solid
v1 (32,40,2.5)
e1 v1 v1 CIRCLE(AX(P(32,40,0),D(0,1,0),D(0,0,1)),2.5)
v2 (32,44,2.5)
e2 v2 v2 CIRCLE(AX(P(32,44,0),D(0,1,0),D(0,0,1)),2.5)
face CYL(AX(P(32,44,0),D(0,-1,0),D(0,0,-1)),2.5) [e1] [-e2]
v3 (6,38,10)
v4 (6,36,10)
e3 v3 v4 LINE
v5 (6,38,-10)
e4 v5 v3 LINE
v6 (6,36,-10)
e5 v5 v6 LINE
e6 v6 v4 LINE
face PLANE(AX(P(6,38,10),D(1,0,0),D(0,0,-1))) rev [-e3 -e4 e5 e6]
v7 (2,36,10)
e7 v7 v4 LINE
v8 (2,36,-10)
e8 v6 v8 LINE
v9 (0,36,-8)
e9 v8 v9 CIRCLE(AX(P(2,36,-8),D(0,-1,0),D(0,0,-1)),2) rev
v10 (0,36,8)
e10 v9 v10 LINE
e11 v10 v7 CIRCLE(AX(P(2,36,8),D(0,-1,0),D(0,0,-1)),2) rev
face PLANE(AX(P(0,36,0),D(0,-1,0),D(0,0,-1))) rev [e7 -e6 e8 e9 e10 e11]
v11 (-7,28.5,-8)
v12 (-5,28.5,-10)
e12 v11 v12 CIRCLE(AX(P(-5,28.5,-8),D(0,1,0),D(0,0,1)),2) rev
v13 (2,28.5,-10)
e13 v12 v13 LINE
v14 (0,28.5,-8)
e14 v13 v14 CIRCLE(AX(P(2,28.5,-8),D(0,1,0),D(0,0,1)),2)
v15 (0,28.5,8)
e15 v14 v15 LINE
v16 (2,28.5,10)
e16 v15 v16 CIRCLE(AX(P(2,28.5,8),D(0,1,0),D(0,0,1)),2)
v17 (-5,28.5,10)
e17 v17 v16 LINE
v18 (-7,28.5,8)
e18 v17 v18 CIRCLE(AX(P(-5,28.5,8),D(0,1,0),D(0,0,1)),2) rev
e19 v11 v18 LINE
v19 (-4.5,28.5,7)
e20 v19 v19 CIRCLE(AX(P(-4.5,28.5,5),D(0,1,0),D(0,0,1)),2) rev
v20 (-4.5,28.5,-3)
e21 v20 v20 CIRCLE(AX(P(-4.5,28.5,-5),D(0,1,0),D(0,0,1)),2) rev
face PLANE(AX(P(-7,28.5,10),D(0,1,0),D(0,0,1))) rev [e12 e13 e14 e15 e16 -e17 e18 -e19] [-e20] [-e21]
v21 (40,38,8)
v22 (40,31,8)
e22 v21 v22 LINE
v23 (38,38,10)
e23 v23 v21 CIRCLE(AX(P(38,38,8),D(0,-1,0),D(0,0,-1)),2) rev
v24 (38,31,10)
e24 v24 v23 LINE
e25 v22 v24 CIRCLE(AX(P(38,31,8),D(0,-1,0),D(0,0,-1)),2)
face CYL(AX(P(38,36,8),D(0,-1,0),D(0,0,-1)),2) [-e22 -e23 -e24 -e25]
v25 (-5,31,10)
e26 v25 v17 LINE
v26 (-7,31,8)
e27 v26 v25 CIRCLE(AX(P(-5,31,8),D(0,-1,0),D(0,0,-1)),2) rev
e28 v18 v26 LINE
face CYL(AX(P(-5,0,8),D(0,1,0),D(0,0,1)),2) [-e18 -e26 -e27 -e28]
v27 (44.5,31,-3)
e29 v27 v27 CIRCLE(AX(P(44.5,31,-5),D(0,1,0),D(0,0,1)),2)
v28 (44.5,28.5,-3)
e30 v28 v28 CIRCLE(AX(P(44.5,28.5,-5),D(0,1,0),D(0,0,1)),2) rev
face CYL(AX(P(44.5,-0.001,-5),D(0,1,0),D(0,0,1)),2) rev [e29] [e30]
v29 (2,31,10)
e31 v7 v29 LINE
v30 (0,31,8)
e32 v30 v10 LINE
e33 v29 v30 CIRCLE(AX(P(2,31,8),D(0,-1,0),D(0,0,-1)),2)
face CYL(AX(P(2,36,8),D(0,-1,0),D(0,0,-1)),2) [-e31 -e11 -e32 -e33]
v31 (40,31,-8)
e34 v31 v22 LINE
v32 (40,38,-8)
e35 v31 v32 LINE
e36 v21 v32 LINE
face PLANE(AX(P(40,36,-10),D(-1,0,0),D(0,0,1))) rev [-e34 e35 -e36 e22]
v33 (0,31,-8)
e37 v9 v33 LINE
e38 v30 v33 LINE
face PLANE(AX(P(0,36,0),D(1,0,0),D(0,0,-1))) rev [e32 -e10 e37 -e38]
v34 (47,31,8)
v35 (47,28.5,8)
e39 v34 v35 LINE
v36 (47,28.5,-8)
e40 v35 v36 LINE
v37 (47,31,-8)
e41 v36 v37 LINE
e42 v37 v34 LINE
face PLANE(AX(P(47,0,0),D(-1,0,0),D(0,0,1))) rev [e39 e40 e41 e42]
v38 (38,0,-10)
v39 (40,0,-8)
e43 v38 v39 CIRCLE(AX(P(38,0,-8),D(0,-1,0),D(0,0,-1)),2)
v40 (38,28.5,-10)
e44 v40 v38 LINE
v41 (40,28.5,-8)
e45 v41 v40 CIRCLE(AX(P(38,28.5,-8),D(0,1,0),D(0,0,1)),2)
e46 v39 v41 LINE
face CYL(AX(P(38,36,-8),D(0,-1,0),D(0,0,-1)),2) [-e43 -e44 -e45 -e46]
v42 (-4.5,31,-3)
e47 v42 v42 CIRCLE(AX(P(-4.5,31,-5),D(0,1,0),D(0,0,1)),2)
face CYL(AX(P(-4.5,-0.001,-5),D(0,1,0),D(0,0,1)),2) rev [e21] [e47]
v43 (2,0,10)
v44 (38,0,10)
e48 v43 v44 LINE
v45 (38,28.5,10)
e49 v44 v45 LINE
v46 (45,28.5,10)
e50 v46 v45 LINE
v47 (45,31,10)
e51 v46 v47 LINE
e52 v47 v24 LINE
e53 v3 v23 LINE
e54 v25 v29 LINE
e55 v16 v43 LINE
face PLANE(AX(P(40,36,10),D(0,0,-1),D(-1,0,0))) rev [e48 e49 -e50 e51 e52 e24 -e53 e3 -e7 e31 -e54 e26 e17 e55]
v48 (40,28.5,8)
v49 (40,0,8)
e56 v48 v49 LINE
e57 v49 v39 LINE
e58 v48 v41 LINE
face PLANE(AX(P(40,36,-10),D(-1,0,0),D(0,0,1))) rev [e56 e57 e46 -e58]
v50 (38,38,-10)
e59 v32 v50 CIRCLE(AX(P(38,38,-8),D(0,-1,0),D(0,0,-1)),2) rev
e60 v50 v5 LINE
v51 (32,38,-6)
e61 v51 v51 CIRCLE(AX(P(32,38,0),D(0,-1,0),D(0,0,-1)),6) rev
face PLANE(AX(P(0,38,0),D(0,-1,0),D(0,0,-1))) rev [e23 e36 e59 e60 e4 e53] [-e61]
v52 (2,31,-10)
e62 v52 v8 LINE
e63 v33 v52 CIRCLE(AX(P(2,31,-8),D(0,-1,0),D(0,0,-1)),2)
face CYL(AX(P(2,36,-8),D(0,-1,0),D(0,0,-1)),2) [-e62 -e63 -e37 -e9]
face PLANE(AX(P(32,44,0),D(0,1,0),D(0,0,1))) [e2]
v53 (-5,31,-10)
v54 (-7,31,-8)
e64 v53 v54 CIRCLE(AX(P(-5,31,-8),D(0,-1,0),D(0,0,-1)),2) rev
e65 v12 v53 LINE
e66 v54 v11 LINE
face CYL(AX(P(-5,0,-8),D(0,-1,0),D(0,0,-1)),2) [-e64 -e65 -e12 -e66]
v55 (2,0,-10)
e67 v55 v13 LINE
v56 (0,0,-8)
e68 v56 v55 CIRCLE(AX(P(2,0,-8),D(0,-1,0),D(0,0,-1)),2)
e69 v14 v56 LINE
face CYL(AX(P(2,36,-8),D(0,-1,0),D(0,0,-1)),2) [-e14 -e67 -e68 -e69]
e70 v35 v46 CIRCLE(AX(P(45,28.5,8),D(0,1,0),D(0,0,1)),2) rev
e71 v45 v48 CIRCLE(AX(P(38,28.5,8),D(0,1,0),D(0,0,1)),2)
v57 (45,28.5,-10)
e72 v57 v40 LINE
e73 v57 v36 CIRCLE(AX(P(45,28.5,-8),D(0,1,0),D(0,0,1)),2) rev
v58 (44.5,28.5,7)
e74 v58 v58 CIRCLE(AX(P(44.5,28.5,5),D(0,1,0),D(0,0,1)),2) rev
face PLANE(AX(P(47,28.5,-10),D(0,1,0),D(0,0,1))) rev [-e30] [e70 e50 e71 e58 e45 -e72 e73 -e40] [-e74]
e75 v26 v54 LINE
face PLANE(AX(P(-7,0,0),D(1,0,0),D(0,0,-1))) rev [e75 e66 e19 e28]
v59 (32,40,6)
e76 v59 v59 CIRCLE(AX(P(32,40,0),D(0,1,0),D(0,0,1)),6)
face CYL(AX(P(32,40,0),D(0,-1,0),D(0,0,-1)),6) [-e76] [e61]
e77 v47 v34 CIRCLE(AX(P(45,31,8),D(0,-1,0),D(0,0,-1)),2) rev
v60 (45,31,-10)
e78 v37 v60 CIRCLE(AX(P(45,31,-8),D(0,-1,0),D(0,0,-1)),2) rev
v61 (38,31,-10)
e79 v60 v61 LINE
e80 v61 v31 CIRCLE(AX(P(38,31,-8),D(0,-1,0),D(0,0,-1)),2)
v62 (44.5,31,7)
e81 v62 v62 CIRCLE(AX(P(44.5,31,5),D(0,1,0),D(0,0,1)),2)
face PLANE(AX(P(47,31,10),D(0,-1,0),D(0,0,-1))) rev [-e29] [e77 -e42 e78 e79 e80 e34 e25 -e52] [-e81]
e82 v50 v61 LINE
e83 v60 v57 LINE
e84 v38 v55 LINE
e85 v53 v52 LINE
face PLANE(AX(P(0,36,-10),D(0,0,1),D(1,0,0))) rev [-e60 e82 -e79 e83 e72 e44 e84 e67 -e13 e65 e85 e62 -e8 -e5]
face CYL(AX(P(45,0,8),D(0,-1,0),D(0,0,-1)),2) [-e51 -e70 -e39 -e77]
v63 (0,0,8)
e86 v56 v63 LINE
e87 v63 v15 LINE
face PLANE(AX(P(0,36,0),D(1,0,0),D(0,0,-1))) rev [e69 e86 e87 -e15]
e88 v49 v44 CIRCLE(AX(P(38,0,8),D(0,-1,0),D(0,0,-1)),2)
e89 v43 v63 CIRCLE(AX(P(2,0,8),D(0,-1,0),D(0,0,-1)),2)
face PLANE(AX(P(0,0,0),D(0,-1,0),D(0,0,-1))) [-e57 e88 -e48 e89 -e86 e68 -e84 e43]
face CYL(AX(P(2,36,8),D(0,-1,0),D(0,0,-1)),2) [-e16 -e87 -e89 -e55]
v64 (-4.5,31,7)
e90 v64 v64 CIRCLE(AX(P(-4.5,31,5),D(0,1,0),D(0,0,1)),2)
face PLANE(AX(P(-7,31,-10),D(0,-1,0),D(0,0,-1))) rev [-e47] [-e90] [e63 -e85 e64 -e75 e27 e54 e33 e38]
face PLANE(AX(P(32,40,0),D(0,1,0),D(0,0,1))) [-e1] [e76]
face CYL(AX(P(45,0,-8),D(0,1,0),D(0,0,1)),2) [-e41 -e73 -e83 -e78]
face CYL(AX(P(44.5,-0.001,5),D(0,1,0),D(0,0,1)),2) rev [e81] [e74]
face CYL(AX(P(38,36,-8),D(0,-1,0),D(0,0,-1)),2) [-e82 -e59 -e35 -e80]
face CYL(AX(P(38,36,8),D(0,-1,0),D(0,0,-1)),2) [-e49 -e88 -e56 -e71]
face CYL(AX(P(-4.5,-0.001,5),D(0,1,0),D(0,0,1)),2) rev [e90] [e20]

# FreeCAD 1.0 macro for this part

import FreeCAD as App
import Part
import Sketcher


def edges_at(feature, points):
    """Names of the edges that pass closest to the given points."""
    edges = feature.Shape.Edges
    near = lambda p: min(range(len(edges)), key=lambda i: edges[i].distToShape(Part.Vertex(*p))[0])
    return sorted({f"Edge{near(p) + 1}" for p in points})


def add_polygon(sketch, points):
    """Adds a closed chain of lines whose ends are joined by coincident constraints."""
    first, n = sketch.GeometryCount, len(points)
    for a, b in zip(points, points[1:] + points[:1]):
        sketch.addGeometry(Part.LineSegment(App.Vector(*a, 0), App.Vector(*b, 0)), False)
    for i in range(n):
        sketch.addConstraint(Sketcher.Constraint("Coincident", first + i, 2, first + (i + 1) % n, 1))

doc = App.newDocument("Part")
body = doc.addObject("PartDesign::Body", "Body")

# Sketch on XZ plane
sketch1 = doc.addObject("Sketcher::SketchObject", "Sketch")
body.addObject(sketch1)
sketch1.AttachmentSupport = (doc.XZ_Plane, [""])
sketch1.MapMode = "FlatFace"
add_polygon(sketch1, [(0, -10), (0, 10), (40, 10), (40, -10)])  # lines 0-3
sketch1.addConstraint(Sketcher.Constraint("Vertical", 0))
sketch1.addConstraint(Sketcher.Constraint("Horizontal", 1))
sketch1.addConstraint(Sketcher.Constraint("Vertical", 2))
sketch1.addConstraint(Sketcher.Constraint("Horizontal", 3))
sketch1.addConstraint(Sketcher.Constraint("Symmetric", 0, 2, 3, 2, -1, 1))
sketch1.addConstraint(Sketcher.Constraint("DistanceX", 1, 1, 1, 2, 40.0))
sketch1.addConstraint(Sketcher.Constraint("DistanceY", 0, 1, 0, 2, 20.0))
pad1 = doc.addObject("PartDesign::Pad", "Pad")
body.addObject(pad1)
pad1.Profile = sketch1
pad1.Length = 36
pad1.Reversed = True

# Sketch on XZ plane
sketch2 = doc.addObject("Sketcher::SketchObject", "Sketch001")
body.addObject(sketch2)
sketch2.AttachmentSupport = (doc.XZ_Plane, [""])
sketch2.MapMode = "FlatFace"
sketch2.AttachmentOffset = App.Placement(App.Vector(0, 0, -36), App.Rotation())
add_polygon(sketch2, [(6, -10), (6, 10), (40, 10), (40, -10)])  # lines 0-3
sketch2.addConstraint(Sketcher.Constraint("Vertical", 0))
sketch2.addConstraint(Sketcher.Constraint("Horizontal", 1))
sketch2.addConstraint(Sketcher.Constraint("Vertical", 2))
sketch2.addConstraint(Sketcher.Constraint("Horizontal", 3))
sketch2.addConstraint(Sketcher.Constraint("DistanceX", 1, 1, 1, 2, 34.0))
sketch2.addConstraint(Sketcher.Constraint("DistanceY", 0, 1, 0, 2, 20.0))
sketch2.addConstraint(Sketcher.Constraint("DistanceX", -1, 1, 0, 2, 6.0))
sketch2.addConstraint(Sketcher.Constraint("DistanceY", -1, 1, 0, 2, 10.0))
pad2 = doc.addObject("PartDesign::Pad", "Pad001")
body.addObject(pad2)
pad2.Profile = sketch2
pad2.Length = 2
pad2.Reversed = True

# Sketch on XZ plane
sketch3 = doc.addObject("Sketcher::SketchObject", "Sketch002")
body.addObject(sketch3)
sketch3.AttachmentSupport = (doc.XZ_Plane, [""])
sketch3.MapMode = "FlatFace"
sketch3.AttachmentOffset = App.Placement(App.Vector(0, 0, -38), App.Rotation())
sketch3.addGeometry(Part.Circle(App.Vector(32, 0, 0), App.Vector(0, 0, 1), 6), False)
sketch3.addConstraint(Sketcher.Constraint("PointOnObject", 0, 3, -1))
sketch3.addConstraint(Sketcher.Constraint("Diameter", 0, 12.0))
sketch3.addConstraint(Sketcher.Constraint("DistanceX", -1, 1, 0, 3, 32.0))
pad3 = doc.addObject("PartDesign::Pad", "Pad002")
body.addObject(pad3)
pad3.Profile = sketch3
pad3.Length = 2
pad3.Reversed = True

# Sketch on XZ plane
sketch4 = doc.addObject("Sketcher::SketchObject", "Sketch003")
body.addObject(sketch4)
sketch4.AttachmentSupport = (doc.XZ_Plane, [""])
sketch4.MapMode = "FlatFace"
sketch4.AttachmentOffset = App.Placement(App.Vector(0, 0, -40), App.Rotation())
sketch4.addGeometry(Part.Circle(App.Vector(32, 0, 0), App.Vector(0, 0, 1), 2.5), False)
sketch4.addConstraint(Sketcher.Constraint("PointOnObject", 0, 3, -1))
sketch4.addConstraint(Sketcher.Constraint("Diameter", 0, 5.0))
sketch4.addConstraint(Sketcher.Constraint("DistanceX", -1, 1, 0, 3, 32.0))
pad4 = doc.addObject("PartDesign::Pad", "Pad003")
body.addObject(pad4)
pad4.Profile = sketch4
pad4.Length = 4
pad4.Reversed = True

# Sketch on YZ plane
sketch5 = doc.addObject("Sketcher::SketchObject", "Sketch004")
body.addObject(sketch5)
sketch5.AttachmentSupport = (doc.YZ_Plane, [""])
sketch5.MapMode = "FlatFace"
add_polygon(sketch5, [(31, -10), (28.5, -10), (28.5, 10), (31, 10)])  # lines 0-3
sketch5.addConstraint(Sketcher.Constraint("Horizontal", 0))
sketch5.addConstraint(Sketcher.Constraint("Vertical", 1))
sketch5.addConstraint(Sketcher.Constraint("Horizontal", 2))
sketch5.addConstraint(Sketcher.Constraint("Vertical", 3))
sketch5.addConstraint(Sketcher.Constraint("DistanceY", 1, 1, 1, 2, 20.0))
sketch5.addConstraint(Sketcher.Constraint("DistanceX", 0, 2, 0, 1, 2.5))
sketch5.addConstraint(Sketcher.Constraint("DistanceY", 0, 2, -1, 1, 10.0))
sketch5.addConstraint(Sketcher.Constraint("DistanceX", -1, 1, 2, 2, 31.0))
pad5 = doc.addObject("PartDesign::Pad", "Pad004")
body.addObject(pad5)
pad5.Profile = sketch5
pad5.Length = 7
pad5.Reversed = True

# Sketch on XZ plane
sketch6 = doc.addObject("Sketcher::SketchObject", "Sketch005")
body.addObject(sketch6)
sketch6.AttachmentSupport = (doc.XZ_Plane, [""])
sketch6.MapMode = "FlatFace"
sketch6.AttachmentOffset = App.Placement(App.Vector(0, 0, -31), App.Rotation())
sketch6.addGeometry(Part.Circle(App.Vector(-4.5, -5, 0), App.Vector(0, 0, 1), 2), False)
sketch6.addConstraint(Sketcher.Constraint("Diameter", 0, 4.0))
sketch6.addConstraint(Sketcher.Constraint("DistanceY", 0, 3, -1, 1, 5.0))
sketch6.addConstraint(Sketcher.Constraint("DistanceX", 0, 3, -1, 1, 4.5))
pocket1 = doc.addObject("PartDesign::Pocket", "Pocket")
body.addObject(pocket1)
pocket1.Profile = sketch6
pocket1.Type = "UpToFirst"
pocket1.Reversed = True

# Sketch on XZ plane
sketch7 = doc.addObject("Sketcher::SketchObject", "Sketch006")
body.addObject(sketch7)
sketch7.AttachmentSupport = (doc.XZ_Plane, [""])
sketch7.MapMode = "FlatFace"
sketch7.AttachmentOffset = App.Placement(App.Vector(0, 0, -31), App.Rotation())
sketch7.addGeometry(Part.Circle(App.Vector(-4.5, 5, 0), App.Vector(0, 0, 1), 2), False)
sketch7.addConstraint(Sketcher.Constraint("Diameter", 0, 4.0))
sketch7.addConstraint(Sketcher.Constraint("DistanceY", -1, 1, 0, 3, 5.0))
sketch7.addConstraint(Sketcher.Constraint("DistanceX", 0, 3, -1, 1, 4.5))
pocket2 = doc.addObject("PartDesign::Pocket", "Pocket001")
body.addObject(pocket2)
pocket2.Profile = sketch7
pocket2.Type = "UpToFirst"
pocket2.Reversed = True
doc.recompute()

fillet = doc.addObject("PartDesign::Fillet", "Fillet")
body.addObject(fillet)
fillet.Base = (pocket2, edges_at(pocket2, [
    (0, 14.25, 10),
    (0, 14.25, -10),
    (-7, 29.75, -10),
    (-7, 29.75, 10),
    (0, 33.5, -10),
    (0, 33.5, 10),
]))
fillet.Radius = 2

# Sketch on YZ plane
sketch8 = doc.addObject("Sketcher::SketchObject", "Sketch007")
body.addObject(sketch8)
sketch8.AttachmentSupport = (doc.YZ_Plane, [""])
sketch8.MapMode = "FlatFace"
sketch8.AttachmentOffset = App.Placement(App.Vector(0, 0, 40), App.Rotation())
add_polygon(sketch8, [(31, 10), (28.5, 10), (28.5, -10), (31, -10)])  # lines 0-3
sketch8.addConstraint(Sketcher.Constraint("Horizontal", 0))
sketch8.addConstraint(Sketcher.Constraint("Vertical", 1))
sketch8.addConstraint(Sketcher.Constraint("Horizontal", 2))
sketch8.addConstraint(Sketcher.Constraint("Vertical", 3))
sketch8.addConstraint(Sketcher.Constraint("DistanceY", 1, 2, 1, 1, 20.0))
sketch8.addConstraint(Sketcher.Constraint("DistanceX", 0, 2, 0, 1, 2.5))
sketch8.addConstraint(Sketcher.Constraint("DistanceY", -1, 1, 0, 2, 10.0))
sketch8.addConstraint(Sketcher.Constraint("DistanceX", -1, 1, 2, 2, 31.0))
pad6 = doc.addObject("PartDesign::Pad", "Pad005")
body.addObject(pad6)
pad6.Profile = sketch8
pad6.Length = 7

# Sketch on XZ plane
sketch9 = doc.addObject("Sketcher::SketchObject", "Sketch008")
body.addObject(sketch9)
sketch9.AttachmentSupport = (doc.XZ_Plane, [""])
sketch9.MapMode = "FlatFace"
sketch9.AttachmentOffset = App.Placement(App.Vector(0, 0, -31), App.Rotation())
sketch9.addGeometry(Part.Circle(App.Vector(44.5, -5, 0), App.Vector(0, 0, 1), 2), False)
sketch9.addConstraint(Sketcher.Constraint("Diameter", 0, 4.0))
sketch9.addConstraint(Sketcher.Constraint("DistanceY", 0, 3, -1, 1, 5.0))
sketch9.addConstraint(Sketcher.Constraint("DistanceX", -1, 1, 0, 3, 44.5))
pocket3 = doc.addObject("PartDesign::Pocket", "Pocket002")
body.addObject(pocket3)
pocket3.Profile = sketch9
pocket3.Type = "UpToFirst"
pocket3.Reversed = True

# Sketch on XZ plane
sketch10 = doc.addObject("Sketcher::SketchObject", "Sketch009")
body.addObject(sketch10)
sketch10.AttachmentSupport = (doc.XZ_Plane, [""])
sketch10.MapMode = "FlatFace"
sketch10.AttachmentOffset = App.Placement(App.Vector(0, 0, -31), App.Rotation())
sketch10.addGeometry(Part.Circle(App.Vector(44.5, 5, 0), App.Vector(0, 0, 1), 2), False)
sketch10.addConstraint(Sketcher.Constraint("Diameter", 0, 4.0))
sketch10.addConstraint(Sketcher.Constraint("DistanceY", -1, 1, 0, 3, 5.0))
sketch10.addConstraint(Sketcher.Constraint("DistanceX", -1, 1, 0, 3, 44.5))
pocket4 = doc.addObject("PartDesign::Pocket", "Pocket003")
body.addObject(pocket4)
pocket4.Profile = sketch10
pocket4.Type = "UpToFirst"
pocket4.Reversed = True
doc.recompute()

fillet2 = doc.addObject("PartDesign::Fillet", "Fillet001")
body.addObject(fillet2)
fillet2.Base = (pocket4, edges_at(pocket4, [
    (40, 14.25, -10),
    (40, 14.25, 10),
    (47, 29.75, 10),
    (47, 29.75, -10),
    (40, 34.5, -10),
    (40, 34.5, 10),
]))
fillet2.Radius = 2

doc.recompute()
